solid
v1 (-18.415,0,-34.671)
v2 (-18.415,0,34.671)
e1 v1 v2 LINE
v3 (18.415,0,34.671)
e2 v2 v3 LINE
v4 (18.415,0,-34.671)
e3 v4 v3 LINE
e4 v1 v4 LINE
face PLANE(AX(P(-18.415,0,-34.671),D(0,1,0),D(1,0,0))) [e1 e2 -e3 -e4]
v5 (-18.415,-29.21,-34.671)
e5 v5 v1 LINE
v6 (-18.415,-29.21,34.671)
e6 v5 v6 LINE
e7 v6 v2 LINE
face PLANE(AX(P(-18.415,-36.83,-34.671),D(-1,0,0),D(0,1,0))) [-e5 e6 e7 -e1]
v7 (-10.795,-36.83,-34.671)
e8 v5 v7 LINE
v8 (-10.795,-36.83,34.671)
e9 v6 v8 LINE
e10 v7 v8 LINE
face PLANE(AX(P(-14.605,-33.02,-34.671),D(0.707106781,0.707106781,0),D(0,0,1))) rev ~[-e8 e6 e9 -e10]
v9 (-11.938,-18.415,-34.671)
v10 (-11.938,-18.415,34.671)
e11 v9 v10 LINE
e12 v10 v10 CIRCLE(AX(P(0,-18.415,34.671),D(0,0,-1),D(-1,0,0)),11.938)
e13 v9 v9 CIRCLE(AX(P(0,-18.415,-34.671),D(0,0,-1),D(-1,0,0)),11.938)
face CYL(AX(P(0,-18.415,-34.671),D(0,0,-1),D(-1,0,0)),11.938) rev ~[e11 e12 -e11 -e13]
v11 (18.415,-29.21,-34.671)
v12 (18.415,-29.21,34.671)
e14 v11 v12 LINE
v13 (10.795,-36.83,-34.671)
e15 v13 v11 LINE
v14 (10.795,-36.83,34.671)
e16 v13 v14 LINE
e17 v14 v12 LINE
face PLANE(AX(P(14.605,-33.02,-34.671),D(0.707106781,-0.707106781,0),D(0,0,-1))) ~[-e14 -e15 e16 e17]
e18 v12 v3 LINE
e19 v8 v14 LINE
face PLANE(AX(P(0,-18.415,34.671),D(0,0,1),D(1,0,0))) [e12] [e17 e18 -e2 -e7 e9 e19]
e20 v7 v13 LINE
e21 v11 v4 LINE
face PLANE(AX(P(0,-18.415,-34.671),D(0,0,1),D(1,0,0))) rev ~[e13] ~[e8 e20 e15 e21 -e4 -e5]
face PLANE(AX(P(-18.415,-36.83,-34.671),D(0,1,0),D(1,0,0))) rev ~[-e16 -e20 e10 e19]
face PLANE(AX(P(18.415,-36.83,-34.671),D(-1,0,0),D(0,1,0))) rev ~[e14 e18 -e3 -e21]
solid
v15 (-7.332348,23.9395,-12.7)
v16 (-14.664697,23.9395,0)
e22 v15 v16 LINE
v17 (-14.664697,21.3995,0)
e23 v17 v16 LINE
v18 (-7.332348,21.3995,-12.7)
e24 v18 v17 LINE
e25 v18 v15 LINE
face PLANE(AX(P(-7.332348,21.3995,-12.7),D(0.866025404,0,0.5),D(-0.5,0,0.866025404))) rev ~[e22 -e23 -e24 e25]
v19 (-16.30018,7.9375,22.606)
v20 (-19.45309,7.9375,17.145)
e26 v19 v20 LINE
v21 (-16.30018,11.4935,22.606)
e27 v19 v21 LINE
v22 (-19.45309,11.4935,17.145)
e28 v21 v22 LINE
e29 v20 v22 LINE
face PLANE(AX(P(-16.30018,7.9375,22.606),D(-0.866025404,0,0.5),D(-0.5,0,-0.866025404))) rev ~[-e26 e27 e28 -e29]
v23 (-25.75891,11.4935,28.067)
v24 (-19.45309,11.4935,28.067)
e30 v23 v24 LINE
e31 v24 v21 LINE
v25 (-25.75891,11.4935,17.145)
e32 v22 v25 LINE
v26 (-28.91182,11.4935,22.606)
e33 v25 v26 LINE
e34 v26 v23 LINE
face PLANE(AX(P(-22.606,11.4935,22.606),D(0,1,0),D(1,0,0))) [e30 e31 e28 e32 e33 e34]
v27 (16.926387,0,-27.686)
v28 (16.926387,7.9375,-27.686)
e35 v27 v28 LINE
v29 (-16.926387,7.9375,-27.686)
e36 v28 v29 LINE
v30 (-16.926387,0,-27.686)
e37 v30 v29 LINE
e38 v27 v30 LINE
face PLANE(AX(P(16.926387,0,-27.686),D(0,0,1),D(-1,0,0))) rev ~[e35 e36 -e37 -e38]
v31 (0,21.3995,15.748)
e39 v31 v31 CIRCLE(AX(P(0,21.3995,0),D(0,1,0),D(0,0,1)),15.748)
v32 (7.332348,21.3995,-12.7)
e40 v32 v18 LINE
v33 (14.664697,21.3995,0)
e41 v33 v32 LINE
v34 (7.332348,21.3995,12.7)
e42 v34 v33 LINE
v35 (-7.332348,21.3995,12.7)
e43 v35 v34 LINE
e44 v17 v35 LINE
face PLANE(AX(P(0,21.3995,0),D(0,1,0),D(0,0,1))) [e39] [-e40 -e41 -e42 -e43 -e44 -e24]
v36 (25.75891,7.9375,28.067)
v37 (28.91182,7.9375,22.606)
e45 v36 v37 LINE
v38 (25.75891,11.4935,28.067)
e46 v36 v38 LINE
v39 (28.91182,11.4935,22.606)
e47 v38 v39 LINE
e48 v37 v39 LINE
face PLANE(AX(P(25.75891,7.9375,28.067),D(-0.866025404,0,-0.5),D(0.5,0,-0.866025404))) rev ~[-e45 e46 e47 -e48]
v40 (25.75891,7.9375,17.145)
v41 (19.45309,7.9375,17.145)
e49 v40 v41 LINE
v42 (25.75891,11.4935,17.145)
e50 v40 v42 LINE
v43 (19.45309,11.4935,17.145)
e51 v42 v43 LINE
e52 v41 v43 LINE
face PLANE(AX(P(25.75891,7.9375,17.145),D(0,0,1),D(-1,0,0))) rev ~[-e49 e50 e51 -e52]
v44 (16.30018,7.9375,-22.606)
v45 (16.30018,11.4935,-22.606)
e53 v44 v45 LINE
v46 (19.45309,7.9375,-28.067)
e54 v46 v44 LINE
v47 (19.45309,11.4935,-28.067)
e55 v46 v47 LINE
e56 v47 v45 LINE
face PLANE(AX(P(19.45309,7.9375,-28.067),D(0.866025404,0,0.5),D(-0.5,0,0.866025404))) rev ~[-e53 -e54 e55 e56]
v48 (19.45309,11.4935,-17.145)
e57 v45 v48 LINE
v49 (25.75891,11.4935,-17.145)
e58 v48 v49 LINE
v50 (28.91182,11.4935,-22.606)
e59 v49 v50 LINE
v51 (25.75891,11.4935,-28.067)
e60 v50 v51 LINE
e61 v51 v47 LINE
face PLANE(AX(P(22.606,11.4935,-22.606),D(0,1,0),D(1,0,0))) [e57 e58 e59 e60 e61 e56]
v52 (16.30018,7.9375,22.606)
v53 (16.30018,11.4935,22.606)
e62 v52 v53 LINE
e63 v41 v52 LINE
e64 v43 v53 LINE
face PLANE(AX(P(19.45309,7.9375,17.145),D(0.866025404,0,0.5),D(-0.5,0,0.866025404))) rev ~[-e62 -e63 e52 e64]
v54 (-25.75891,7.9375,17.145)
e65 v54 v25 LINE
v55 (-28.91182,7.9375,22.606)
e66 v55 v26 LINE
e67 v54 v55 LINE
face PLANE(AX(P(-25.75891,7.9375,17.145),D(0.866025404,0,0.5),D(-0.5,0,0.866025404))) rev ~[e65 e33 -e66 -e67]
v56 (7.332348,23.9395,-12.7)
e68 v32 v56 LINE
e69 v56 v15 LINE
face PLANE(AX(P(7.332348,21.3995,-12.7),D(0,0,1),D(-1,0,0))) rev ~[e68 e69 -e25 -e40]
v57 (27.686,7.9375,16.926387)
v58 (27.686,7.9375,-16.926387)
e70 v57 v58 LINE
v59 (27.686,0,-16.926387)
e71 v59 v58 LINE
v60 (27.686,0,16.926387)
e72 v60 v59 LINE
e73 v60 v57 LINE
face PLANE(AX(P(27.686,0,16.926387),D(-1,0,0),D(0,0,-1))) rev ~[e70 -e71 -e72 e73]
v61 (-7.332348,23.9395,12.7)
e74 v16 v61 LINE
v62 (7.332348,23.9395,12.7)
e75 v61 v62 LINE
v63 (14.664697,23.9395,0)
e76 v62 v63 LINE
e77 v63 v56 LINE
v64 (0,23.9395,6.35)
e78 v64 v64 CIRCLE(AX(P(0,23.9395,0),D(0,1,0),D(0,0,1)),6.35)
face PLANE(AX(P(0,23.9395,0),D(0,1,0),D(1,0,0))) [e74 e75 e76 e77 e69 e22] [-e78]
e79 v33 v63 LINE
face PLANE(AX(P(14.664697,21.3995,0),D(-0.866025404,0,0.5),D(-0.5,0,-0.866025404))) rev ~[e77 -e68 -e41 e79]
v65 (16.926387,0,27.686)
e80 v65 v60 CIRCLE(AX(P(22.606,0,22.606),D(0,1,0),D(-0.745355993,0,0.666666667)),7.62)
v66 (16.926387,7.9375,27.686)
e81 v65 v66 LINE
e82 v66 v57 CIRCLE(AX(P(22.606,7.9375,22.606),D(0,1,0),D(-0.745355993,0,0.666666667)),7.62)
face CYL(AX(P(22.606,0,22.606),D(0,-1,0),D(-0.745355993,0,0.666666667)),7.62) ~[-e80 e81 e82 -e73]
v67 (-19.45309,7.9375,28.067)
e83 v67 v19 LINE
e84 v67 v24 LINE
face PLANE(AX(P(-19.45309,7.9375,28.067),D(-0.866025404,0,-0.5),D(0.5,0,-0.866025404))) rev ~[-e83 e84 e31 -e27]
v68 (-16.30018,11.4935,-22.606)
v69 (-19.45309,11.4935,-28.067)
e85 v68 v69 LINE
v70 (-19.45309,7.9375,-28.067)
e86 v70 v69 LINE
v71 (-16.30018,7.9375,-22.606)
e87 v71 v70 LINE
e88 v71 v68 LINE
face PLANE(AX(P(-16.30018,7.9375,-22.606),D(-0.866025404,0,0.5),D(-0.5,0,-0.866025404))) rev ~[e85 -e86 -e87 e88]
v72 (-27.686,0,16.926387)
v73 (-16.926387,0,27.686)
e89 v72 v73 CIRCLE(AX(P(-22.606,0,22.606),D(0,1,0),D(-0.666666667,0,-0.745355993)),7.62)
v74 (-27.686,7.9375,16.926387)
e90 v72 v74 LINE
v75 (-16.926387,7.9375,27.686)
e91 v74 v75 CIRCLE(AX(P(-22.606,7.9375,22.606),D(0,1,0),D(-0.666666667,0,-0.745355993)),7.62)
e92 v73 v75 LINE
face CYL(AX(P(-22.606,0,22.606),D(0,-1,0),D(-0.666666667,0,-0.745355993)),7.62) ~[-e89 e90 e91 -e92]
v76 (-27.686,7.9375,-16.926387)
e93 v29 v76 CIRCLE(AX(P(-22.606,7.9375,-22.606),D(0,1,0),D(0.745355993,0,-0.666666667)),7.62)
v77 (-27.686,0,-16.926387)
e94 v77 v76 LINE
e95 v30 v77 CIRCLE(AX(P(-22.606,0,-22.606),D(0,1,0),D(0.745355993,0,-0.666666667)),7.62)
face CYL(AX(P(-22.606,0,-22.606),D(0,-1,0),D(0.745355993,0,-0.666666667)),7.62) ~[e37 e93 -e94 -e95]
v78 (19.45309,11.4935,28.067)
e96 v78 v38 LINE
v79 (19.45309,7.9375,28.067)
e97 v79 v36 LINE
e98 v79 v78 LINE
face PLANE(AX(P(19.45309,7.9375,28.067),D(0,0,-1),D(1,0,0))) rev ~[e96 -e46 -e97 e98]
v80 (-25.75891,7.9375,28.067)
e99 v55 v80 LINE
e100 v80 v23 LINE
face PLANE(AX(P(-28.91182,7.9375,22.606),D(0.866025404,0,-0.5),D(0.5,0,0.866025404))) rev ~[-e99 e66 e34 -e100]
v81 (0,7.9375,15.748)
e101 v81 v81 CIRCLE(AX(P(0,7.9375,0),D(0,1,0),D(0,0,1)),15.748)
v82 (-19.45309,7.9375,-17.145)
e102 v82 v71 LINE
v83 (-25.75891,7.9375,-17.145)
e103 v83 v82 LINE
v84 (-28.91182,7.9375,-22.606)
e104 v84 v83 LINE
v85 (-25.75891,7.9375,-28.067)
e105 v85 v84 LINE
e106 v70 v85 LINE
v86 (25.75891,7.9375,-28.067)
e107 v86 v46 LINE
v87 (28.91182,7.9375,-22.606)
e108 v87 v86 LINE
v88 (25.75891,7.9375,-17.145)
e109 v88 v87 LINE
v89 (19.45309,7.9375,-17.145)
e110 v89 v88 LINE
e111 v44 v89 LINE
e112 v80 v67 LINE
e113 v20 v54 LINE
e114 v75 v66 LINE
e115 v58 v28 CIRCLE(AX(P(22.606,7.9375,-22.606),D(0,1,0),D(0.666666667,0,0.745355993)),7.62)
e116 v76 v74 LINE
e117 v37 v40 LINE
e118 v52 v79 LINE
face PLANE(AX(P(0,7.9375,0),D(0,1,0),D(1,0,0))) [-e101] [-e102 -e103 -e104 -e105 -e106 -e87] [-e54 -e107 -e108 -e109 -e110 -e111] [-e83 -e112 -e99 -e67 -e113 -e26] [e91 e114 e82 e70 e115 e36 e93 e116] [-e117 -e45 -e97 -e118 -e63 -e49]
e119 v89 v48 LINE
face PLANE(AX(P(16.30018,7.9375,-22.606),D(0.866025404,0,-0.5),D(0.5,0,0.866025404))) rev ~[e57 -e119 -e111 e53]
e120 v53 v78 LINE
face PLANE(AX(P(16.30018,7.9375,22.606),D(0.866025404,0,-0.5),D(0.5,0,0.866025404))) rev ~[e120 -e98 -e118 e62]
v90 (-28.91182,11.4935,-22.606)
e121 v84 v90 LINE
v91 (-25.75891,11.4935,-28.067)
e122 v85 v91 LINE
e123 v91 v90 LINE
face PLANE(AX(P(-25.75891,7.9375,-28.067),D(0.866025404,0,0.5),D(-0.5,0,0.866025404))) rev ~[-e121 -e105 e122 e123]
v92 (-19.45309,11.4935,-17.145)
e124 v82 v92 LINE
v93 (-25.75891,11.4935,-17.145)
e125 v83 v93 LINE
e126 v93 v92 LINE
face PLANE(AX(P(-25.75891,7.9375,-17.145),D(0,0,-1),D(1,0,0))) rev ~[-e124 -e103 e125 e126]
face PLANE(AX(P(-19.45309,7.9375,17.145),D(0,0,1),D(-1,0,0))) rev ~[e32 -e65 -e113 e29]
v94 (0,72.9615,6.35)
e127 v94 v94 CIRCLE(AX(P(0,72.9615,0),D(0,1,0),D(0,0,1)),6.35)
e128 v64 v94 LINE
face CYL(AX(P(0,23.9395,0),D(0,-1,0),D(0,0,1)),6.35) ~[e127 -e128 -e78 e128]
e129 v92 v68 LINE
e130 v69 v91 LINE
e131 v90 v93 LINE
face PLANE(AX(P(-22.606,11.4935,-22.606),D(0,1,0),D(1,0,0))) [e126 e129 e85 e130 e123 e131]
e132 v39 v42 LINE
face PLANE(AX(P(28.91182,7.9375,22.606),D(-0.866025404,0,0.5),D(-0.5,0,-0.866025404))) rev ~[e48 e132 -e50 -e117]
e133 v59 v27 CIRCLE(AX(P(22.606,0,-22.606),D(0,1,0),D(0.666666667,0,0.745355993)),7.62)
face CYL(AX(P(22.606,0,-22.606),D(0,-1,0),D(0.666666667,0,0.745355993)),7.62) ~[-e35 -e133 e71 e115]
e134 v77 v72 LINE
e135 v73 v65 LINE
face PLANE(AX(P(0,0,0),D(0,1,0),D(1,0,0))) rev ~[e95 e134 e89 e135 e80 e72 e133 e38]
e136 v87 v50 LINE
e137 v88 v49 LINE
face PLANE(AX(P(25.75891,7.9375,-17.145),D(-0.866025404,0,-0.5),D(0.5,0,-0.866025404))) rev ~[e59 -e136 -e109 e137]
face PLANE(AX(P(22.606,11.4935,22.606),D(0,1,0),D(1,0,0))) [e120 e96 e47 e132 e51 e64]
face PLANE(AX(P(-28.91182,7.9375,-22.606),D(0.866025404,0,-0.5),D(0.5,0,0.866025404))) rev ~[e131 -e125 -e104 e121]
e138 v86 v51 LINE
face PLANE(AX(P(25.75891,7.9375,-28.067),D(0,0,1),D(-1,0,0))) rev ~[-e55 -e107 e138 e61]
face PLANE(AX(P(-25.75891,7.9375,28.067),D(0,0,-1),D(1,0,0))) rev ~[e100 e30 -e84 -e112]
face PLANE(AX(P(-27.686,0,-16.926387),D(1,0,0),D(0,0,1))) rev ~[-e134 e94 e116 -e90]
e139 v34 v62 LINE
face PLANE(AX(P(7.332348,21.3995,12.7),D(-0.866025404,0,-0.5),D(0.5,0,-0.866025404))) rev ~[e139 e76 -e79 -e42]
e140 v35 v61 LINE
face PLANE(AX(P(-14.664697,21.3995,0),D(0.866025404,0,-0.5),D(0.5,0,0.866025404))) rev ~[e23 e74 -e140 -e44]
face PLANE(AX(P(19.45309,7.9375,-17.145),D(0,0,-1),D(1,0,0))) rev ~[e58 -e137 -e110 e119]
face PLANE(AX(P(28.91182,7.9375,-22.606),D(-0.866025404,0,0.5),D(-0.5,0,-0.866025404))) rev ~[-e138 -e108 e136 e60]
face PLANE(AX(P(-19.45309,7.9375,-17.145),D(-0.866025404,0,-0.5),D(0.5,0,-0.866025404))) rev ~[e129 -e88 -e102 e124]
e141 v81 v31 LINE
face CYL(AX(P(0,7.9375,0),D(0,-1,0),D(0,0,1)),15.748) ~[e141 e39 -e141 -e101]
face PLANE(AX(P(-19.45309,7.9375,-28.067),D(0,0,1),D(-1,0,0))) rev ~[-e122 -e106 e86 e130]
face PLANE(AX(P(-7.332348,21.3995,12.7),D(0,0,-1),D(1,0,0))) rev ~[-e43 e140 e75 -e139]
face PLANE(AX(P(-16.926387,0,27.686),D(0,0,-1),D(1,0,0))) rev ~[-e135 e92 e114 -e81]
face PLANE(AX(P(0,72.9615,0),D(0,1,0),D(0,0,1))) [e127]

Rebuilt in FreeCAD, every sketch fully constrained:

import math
import FreeCAD as App
import Part
import Sketcher
from FreeCAD import Vector
Q = App.Units.Quantity


def edges_at(feature, points):
    """Names of the edges that pass closest to the given points."""
    edges = feature.Shape.Edges
    near = lambda p: min(range(len(edges)), key=lambda i: edges[i].distToShape(Part.Vertex(*p))[0])
    return sorted({f"Edge{near(p) + 1}" for p in points})


def add_polygon(sketch, points):
    """Adds a closed chain of lines whose ends are joined by coincident constraints."""
    first, n = sketch.GeometryCount, len(points)
    for a, b in zip(points, points[1:] + points[:1]):
        sketch.addGeometry(Part.LineSegment(App.Vector(*a, 0), App.Vector(*b, 0)), False)
    for i in range(n):
        sketch.addConstraint(Sketcher.Constraint("Coincident", first + i, 2, first + (i + 1) % n, 1))

doc = App.newDocument("Part")
body = doc.addObject("PartDesign::Body", "Body")

# Sketch on XZ plane
sketch1 = body.newObject("Sketcher::SketchObject", "Sketch")
sketch1.AttachmentSupport = (doc.getObject("XZ_Plane"), [""])
sketch1.MapMode = "FlatFace"
sketch1.addGeometry([
    Part.LineSegment(Vector(17, -28, 0), Vector(-17, -28, 0)),  # 0
    Part.ArcOfCircle(Part.Circle(Vector(-23, -23, 0), Vector(0, 0, 1), 8), math.radians(132), math.radians(318)),  # 1
    Part.LineSegment(Vector(-28, -17, 0), Vector(-28, 17, 0)),  # 2
    Part.ArcOfCircle(Part.Circle(Vector(-23, 23, 0), Vector(0, 0, 1), 8), math.radians(42), math.radians(228)),  # 3
    Part.LineSegment(Vector(-17, 28, 0), Vector(17, 28, 0)),  # 4
    Part.ArcOfCircle(Part.Circle(Vector(23, 23, 0), Vector(0, 0, 1), 8), math.radians(-48), math.radians(138)),  # 5
    Part.LineSegment(Vector(28, 17, 0), Vector(28, -17, 0)),  # 6
    Part.ArcOfCircle(Part.Circle(Vector(23, -23, 0), Vector(0, 0, 1), 8), math.radians(-138), math.radians(48)),  # 7
], False)
sketch1.addConstraint([
    Sketcher.Constraint("Coincident", 0, 2, 1, 2),
    Sketcher.Constraint("Coincident", 1, 1, 2, 1),
    Sketcher.Constraint("Coincident", 2, 2, 3, 2),
    Sketcher.Constraint("Coincident", 3, 1, 4, 1),
    Sketcher.Constraint("Coincident", 4, 2, 5, 2),
    Sketcher.Constraint("Coincident", 5, 1, 6, 1),
    Sketcher.Constraint("Coincident", 6, 2, 7, 2),
    Sketcher.Constraint("Coincident", 7, 1, 0, 1),
    Sketcher.Constraint("Horizontal", 0),
    Sketcher.Constraint("Vertical", 2),
    Sketcher.Constraint("Horizontal", 4),
    Sketcher.Constraint("Vertical", 6),
    Sketcher.Constraint("Equal", 1, 3),
    Sketcher.Constraint("Equal", 3, 5),
    Sketcher.Constraint("Equal", 5, 7),
    Sketcher.Constraint("Symmetric", 1, 3, 5, 3, -1, 1),
    Sketcher.Constraint("Symmetric", 3, 3, 7, 3, -1, 1),
    Sketcher.Constraint("Symmetric", 3, 3, 5, 3, -2),
    Sketcher.Constraint("Horizontal", 2, 2, 5, 1),
    Sketcher.Constraint("Vertical", 0, 2, 3, 1),
    Sketcher.Constraint("Equal", 4, 2),
    Sketcher.Constraint("Radius", 1, Q("0.3 in")),
    Sketcher.Constraint("DistanceY", 0, 2, 1, 3, Q("0.2 in")),
    Sketcher.Constraint("DistanceX", 1, 1, 1, 3, Q("0.2 in")),
    Sketcher.Constraint("DistanceX", 1, 3, -1, 1, Q("0.89 in")),
])
pad1 = body.newObject("PartDesign::Pad", "Pad")
pad1.Profile = sketch1
pad1.Length = Q("0.3125 in")
pad1.Reversed = True

# Sketch on XZ plane
sketch2 = body.newObject("Sketcher::SketchObject", "Sketch001")
sketch2.AttachmentSupport = (doc.getObject("XZ_Plane"), [""])
sketch2.MapMode = "FlatFace"
sketch2.AttachmentOffset = App.Placement(Vector(0, 0, -0.3125 * 25.4), App.Rotation())
add_polygon(sketch2, [(16, 23), (19, 28), (26, 28), (29, 23), (26, 17), (19, 17)])  # lines 0-5
add_polygon(sketch2, [(-16, 23), (-19, 17), (-26, 17), (-29, 23), (-26, 28), (-19, 28)])  # lines 6-11
add_polygon(sketch2, [(-16, -23), (-19, -28), (-26, -28), (-29, -23), (-26, -17), (-19, -17)])  # lines 12-17
add_polygon(sketch2, [(16, -23), (19, -17), (26, -17), (29, -23), (26, -28), (19, -28)])  # lines 18-23
sketch2.addConstraint([
    Sketcher.Constraint("Horizontal", 1),
    Sketcher.Constraint("Horizontal", 4),
    Sketcher.Constraint("Horizontal", 7),
    Sketcher.Constraint("Horizontal", 10),
    Sketcher.Constraint("Horizontal", 13),
    Sketcher.Constraint("Horizontal", 16),
    Sketcher.Constraint("Horizontal", 19),
    Sketcher.Constraint("Horizontal", 22),
    Sketcher.Constraint("Symmetric", 0, 2, 12, 2, -1, 1),
    Sketcher.Constraint("Symmetric", 2, 2, 14, 2, -1, 1),
    Sketcher.Constraint("Symmetric", 3, 2, 15, 2, -1, 1),
    Sketcher.Constraint("Symmetric", 5, 2, 17, 2, -1, 1),
    Sketcher.Constraint("Symmetric", 6, 2, 18, 2, -1, 1),
    Sketcher.Constraint("Symmetric", 8, 2, 20, 2, -1, 1),
    Sketcher.Constraint("Symmetric", 9, 2, 21, 2, -1, 1),
    Sketcher.Constraint("Symmetric", 11, 2, 23, 2, -1, 1),
    Sketcher.Constraint("Symmetric", 4, 2, 6, 2, -2),
    Sketcher.Constraint("Symmetric", 2, 2, 8, 2, -2),
    Sketcher.Constraint("Symmetric", 1, 2, 9, 2, -2),
    Sketcher.Constraint("Symmetric", 5, 2, 11, 2, -2),
    Sketcher.Constraint("Parallel", 0, 3),
    Sketcher.Constraint("Parallel", 2, 5),
    Sketcher.Constraint("Parallel", 3, 6),
    Sketcher.Constraint("Parallel", 5, 8),
    Sketcher.Constraint("Parallel", 8, 11),
    Sketcher.Constraint("Parallel", 11, 14),
    Sketcher.Constraint("Parallel", 14, 17),
    Sketcher.Constraint("Parallel", 17, 20),
    Sketcher.Constraint("Parallel", 20, 23),
    Sketcher.Constraint("Horizontal", 2, 2, 5, 2),
    Sketcher.Constraint("Vertical", 1, 2, 3, 2),
    Sketcher.Constraint("Angle", 0, Q("60 deg")),
    Sketcher.Constraint("DistanceY", -1, 1, 2, 2, Q("0.89 in")),
    Sketcher.Constraint("DistanceY", 3, 2, 1, 2, Q("0.43 in")),
    Sketcher.Constraint("DistanceX", 6, 2, 3, 2, Q("1.78 in")),
    Sketcher.Constraint("DistanceX", 1, 1, 1, 2, 6.30582),
])
pad2 = body.newObject("PartDesign::Pad", "Pad001")
pad2.Profile = sketch2
pad2.Length = Q("0.14 in")
pad2.Reversed = True

# Sketch on XZ plane
sketch3 = body.newObject("Sketcher::SketchObject", "Sketch002")
sketch3.AttachmentSupport = (doc.getObject("XZ_Plane"), [""])
sketch3.MapMode = "FlatFace"
sketch3.AttachmentOffset = App.Placement(Vector(0, 0, -0.3125 * 25.4), App.Rotation())
sketch3.addGeometry(Part.Circle(Vector(0, 0, 0), Vector(0, 0, 1), 16), False)
sketch3.addConstraint([
    Sketcher.Constraint("Coincident", 0, 3, -1, 1),
    Sketcher.Constraint("Diameter", 0, Q("1.24 in")),
])
pad3 = body.newObject("PartDesign::Pad", "Pad002")
pad3.Profile = sketch3
pad3.Length = Q("0.53 in")
pad3.Reversed = True

# Sketch on XZ plane
sketch4 = body.newObject("Sketcher::SketchObject", "Sketch003")
sketch4.AttachmentSupport = (doc.getObject("XZ_Plane"), [""])
sketch4.MapMode = "FlatFace"
sketch4.AttachmentOffset = App.Placement(Vector(0, 0, -0.8425 * 25.4), App.Rotation())
add_polygon(sketch4, [(15, 0), (7, -13), (-7, -13), (-15, 0), (-7, 13), (7, 13)])  # lines 0-5
sketch4.addConstraint([
    Sketcher.Constraint("Horizontal", 1),
    Sketcher.Constraint("Horizontal", 4),
    Sketcher.Constraint("Symmetric", 0, 2, 3, 2, -1, 1),
    Sketcher.Constraint("Symmetric", 2, 2, 5, 2, -1, 1),
    Sketcher.Constraint("PointOnObject", 2, 2, -1),
    Sketcher.Constraint("Parallel", 2, 5),
    Sketcher.Constraint("Vertical", 1, 2, 3, 2),
    Sketcher.Constraint("Angle", 0, Q("-120 deg")),
    Sketcher.Constraint("DistanceY", 1, 2, 3, 2, Q("1 in")),
    Sketcher.Constraint("DistanceX", 1, 2, 1, 1, 14.664697),
])
pad4 = body.newObject("PartDesign::Pad", "Pad003")
pad4.Profile = sketch4
pad4.Length = Q("0.1 in")
pad4.Reversed = True

# Sketch on XZ plane
sketch5 = body.newObject("Sketcher::SketchObject", "Sketch004")
sketch5.AttachmentSupport = (doc.getObject("XZ_Plane"), [""])
sketch5.MapMode = "FlatFace"
sketch5.AttachmentOffset = App.Placement(Vector(0, 0, -0.9425 * 25.4), App.Rotation())
sketch5.addGeometry(Part.Circle(Vector(0, 0, 0), Vector(0, 0, 1), 6), False)
sketch5.addConstraint([
    Sketcher.Constraint("Coincident", 0, 3, -1, 1),
    Sketcher.Constraint("Diameter", 0, Q("0.5 in")),
])
pad5 = body.newObject("PartDesign::Pad", "Pad004")
pad5.Profile = sketch5
pad5.Length = Q("1.93 in")
pad5.Reversed = True
body2 = doc.addObject("PartDesign::Body", "Body001")

# Sketch on XY plane
sketch6 = body2.newObject("Sketcher::SketchObject", "Sketch005")
sketch6.AttachmentSupport = (doc.getObject("XY_Plane001"), [""])
sketch6.MapMode = "FlatFace"
sketch6.AttachmentOffset = App.Placement(Vector(0, 0, 1.09 * 25.4), App.Rotation())
add_polygon(sketch6, [(-18, 0), (-18, -37), (18, -37), (18, 0)])  # lines 0-3
sketch6.addConstraint([
    Sketcher.Constraint("Vertical", 0),
    Sketcher.Constraint("Horizontal", 1),
    Sketcher.Constraint("Vertical", 2),
    Sketcher.Constraint("Horizontal", 3),
    Sketcher.Constraint("Symmetric", 2, 2, 3, 2, -1, 1),
    Sketcher.Constraint("Equal", 3, 0),
    Sketcher.Constraint("DistanceX", 1, 1, 1, 2, Q("1.45 in")),
])
pad6 = body2.newObject("PartDesign::Pad", "Pad005")
pad6.Profile = sketch6
pad6.Type = "TwoLengths"
pad6.Length = Q("0.275 in")
pad6.Length2 = Q("2.455 in")

# Sketch on XY plane
sketch7 = body2.newObject("Sketcher::SketchObject", "Sketch006")
sketch7.AttachmentSupport = (doc.getObject("XY_Plane001"), [""])
sketch7.MapMode = "FlatFace"
sketch7.AttachmentOffset = App.Placement(Vector(0, 0, -1.365 * 25.4), App.Rotation())
sketch7.addGeometry(Part.Circle(Vector(0, -18, 0), Vector(0, 0, 1), 12), False)
sketch7.addConstraint([
    Sketcher.Constraint("PointOnObject", 0, 3, -2),
    Sketcher.Constraint("Diameter", 0, Q("0.94 in")),
    Sketcher.Constraint("DistanceY", 0, 3, -1, 1, Q("0.725 in")),
])
pocket1 = body2.newObject("PartDesign::Pocket", "Pocket")
pocket1.Profile = sketch7
pocket1.Type = "ThroughAll"
pocket1.Reversed = True
doc.recompute()

chamfer = body2.newObject("PartDesign::Chamfer", "Chamfer")
chamfer.Base = (pocket1, edges_at(pocket1, [(18.415, -36.83, 0), (-18.415, -36.83, 0)]))
chamfer.Size = Q("0.3 in")

doc.recompute()
